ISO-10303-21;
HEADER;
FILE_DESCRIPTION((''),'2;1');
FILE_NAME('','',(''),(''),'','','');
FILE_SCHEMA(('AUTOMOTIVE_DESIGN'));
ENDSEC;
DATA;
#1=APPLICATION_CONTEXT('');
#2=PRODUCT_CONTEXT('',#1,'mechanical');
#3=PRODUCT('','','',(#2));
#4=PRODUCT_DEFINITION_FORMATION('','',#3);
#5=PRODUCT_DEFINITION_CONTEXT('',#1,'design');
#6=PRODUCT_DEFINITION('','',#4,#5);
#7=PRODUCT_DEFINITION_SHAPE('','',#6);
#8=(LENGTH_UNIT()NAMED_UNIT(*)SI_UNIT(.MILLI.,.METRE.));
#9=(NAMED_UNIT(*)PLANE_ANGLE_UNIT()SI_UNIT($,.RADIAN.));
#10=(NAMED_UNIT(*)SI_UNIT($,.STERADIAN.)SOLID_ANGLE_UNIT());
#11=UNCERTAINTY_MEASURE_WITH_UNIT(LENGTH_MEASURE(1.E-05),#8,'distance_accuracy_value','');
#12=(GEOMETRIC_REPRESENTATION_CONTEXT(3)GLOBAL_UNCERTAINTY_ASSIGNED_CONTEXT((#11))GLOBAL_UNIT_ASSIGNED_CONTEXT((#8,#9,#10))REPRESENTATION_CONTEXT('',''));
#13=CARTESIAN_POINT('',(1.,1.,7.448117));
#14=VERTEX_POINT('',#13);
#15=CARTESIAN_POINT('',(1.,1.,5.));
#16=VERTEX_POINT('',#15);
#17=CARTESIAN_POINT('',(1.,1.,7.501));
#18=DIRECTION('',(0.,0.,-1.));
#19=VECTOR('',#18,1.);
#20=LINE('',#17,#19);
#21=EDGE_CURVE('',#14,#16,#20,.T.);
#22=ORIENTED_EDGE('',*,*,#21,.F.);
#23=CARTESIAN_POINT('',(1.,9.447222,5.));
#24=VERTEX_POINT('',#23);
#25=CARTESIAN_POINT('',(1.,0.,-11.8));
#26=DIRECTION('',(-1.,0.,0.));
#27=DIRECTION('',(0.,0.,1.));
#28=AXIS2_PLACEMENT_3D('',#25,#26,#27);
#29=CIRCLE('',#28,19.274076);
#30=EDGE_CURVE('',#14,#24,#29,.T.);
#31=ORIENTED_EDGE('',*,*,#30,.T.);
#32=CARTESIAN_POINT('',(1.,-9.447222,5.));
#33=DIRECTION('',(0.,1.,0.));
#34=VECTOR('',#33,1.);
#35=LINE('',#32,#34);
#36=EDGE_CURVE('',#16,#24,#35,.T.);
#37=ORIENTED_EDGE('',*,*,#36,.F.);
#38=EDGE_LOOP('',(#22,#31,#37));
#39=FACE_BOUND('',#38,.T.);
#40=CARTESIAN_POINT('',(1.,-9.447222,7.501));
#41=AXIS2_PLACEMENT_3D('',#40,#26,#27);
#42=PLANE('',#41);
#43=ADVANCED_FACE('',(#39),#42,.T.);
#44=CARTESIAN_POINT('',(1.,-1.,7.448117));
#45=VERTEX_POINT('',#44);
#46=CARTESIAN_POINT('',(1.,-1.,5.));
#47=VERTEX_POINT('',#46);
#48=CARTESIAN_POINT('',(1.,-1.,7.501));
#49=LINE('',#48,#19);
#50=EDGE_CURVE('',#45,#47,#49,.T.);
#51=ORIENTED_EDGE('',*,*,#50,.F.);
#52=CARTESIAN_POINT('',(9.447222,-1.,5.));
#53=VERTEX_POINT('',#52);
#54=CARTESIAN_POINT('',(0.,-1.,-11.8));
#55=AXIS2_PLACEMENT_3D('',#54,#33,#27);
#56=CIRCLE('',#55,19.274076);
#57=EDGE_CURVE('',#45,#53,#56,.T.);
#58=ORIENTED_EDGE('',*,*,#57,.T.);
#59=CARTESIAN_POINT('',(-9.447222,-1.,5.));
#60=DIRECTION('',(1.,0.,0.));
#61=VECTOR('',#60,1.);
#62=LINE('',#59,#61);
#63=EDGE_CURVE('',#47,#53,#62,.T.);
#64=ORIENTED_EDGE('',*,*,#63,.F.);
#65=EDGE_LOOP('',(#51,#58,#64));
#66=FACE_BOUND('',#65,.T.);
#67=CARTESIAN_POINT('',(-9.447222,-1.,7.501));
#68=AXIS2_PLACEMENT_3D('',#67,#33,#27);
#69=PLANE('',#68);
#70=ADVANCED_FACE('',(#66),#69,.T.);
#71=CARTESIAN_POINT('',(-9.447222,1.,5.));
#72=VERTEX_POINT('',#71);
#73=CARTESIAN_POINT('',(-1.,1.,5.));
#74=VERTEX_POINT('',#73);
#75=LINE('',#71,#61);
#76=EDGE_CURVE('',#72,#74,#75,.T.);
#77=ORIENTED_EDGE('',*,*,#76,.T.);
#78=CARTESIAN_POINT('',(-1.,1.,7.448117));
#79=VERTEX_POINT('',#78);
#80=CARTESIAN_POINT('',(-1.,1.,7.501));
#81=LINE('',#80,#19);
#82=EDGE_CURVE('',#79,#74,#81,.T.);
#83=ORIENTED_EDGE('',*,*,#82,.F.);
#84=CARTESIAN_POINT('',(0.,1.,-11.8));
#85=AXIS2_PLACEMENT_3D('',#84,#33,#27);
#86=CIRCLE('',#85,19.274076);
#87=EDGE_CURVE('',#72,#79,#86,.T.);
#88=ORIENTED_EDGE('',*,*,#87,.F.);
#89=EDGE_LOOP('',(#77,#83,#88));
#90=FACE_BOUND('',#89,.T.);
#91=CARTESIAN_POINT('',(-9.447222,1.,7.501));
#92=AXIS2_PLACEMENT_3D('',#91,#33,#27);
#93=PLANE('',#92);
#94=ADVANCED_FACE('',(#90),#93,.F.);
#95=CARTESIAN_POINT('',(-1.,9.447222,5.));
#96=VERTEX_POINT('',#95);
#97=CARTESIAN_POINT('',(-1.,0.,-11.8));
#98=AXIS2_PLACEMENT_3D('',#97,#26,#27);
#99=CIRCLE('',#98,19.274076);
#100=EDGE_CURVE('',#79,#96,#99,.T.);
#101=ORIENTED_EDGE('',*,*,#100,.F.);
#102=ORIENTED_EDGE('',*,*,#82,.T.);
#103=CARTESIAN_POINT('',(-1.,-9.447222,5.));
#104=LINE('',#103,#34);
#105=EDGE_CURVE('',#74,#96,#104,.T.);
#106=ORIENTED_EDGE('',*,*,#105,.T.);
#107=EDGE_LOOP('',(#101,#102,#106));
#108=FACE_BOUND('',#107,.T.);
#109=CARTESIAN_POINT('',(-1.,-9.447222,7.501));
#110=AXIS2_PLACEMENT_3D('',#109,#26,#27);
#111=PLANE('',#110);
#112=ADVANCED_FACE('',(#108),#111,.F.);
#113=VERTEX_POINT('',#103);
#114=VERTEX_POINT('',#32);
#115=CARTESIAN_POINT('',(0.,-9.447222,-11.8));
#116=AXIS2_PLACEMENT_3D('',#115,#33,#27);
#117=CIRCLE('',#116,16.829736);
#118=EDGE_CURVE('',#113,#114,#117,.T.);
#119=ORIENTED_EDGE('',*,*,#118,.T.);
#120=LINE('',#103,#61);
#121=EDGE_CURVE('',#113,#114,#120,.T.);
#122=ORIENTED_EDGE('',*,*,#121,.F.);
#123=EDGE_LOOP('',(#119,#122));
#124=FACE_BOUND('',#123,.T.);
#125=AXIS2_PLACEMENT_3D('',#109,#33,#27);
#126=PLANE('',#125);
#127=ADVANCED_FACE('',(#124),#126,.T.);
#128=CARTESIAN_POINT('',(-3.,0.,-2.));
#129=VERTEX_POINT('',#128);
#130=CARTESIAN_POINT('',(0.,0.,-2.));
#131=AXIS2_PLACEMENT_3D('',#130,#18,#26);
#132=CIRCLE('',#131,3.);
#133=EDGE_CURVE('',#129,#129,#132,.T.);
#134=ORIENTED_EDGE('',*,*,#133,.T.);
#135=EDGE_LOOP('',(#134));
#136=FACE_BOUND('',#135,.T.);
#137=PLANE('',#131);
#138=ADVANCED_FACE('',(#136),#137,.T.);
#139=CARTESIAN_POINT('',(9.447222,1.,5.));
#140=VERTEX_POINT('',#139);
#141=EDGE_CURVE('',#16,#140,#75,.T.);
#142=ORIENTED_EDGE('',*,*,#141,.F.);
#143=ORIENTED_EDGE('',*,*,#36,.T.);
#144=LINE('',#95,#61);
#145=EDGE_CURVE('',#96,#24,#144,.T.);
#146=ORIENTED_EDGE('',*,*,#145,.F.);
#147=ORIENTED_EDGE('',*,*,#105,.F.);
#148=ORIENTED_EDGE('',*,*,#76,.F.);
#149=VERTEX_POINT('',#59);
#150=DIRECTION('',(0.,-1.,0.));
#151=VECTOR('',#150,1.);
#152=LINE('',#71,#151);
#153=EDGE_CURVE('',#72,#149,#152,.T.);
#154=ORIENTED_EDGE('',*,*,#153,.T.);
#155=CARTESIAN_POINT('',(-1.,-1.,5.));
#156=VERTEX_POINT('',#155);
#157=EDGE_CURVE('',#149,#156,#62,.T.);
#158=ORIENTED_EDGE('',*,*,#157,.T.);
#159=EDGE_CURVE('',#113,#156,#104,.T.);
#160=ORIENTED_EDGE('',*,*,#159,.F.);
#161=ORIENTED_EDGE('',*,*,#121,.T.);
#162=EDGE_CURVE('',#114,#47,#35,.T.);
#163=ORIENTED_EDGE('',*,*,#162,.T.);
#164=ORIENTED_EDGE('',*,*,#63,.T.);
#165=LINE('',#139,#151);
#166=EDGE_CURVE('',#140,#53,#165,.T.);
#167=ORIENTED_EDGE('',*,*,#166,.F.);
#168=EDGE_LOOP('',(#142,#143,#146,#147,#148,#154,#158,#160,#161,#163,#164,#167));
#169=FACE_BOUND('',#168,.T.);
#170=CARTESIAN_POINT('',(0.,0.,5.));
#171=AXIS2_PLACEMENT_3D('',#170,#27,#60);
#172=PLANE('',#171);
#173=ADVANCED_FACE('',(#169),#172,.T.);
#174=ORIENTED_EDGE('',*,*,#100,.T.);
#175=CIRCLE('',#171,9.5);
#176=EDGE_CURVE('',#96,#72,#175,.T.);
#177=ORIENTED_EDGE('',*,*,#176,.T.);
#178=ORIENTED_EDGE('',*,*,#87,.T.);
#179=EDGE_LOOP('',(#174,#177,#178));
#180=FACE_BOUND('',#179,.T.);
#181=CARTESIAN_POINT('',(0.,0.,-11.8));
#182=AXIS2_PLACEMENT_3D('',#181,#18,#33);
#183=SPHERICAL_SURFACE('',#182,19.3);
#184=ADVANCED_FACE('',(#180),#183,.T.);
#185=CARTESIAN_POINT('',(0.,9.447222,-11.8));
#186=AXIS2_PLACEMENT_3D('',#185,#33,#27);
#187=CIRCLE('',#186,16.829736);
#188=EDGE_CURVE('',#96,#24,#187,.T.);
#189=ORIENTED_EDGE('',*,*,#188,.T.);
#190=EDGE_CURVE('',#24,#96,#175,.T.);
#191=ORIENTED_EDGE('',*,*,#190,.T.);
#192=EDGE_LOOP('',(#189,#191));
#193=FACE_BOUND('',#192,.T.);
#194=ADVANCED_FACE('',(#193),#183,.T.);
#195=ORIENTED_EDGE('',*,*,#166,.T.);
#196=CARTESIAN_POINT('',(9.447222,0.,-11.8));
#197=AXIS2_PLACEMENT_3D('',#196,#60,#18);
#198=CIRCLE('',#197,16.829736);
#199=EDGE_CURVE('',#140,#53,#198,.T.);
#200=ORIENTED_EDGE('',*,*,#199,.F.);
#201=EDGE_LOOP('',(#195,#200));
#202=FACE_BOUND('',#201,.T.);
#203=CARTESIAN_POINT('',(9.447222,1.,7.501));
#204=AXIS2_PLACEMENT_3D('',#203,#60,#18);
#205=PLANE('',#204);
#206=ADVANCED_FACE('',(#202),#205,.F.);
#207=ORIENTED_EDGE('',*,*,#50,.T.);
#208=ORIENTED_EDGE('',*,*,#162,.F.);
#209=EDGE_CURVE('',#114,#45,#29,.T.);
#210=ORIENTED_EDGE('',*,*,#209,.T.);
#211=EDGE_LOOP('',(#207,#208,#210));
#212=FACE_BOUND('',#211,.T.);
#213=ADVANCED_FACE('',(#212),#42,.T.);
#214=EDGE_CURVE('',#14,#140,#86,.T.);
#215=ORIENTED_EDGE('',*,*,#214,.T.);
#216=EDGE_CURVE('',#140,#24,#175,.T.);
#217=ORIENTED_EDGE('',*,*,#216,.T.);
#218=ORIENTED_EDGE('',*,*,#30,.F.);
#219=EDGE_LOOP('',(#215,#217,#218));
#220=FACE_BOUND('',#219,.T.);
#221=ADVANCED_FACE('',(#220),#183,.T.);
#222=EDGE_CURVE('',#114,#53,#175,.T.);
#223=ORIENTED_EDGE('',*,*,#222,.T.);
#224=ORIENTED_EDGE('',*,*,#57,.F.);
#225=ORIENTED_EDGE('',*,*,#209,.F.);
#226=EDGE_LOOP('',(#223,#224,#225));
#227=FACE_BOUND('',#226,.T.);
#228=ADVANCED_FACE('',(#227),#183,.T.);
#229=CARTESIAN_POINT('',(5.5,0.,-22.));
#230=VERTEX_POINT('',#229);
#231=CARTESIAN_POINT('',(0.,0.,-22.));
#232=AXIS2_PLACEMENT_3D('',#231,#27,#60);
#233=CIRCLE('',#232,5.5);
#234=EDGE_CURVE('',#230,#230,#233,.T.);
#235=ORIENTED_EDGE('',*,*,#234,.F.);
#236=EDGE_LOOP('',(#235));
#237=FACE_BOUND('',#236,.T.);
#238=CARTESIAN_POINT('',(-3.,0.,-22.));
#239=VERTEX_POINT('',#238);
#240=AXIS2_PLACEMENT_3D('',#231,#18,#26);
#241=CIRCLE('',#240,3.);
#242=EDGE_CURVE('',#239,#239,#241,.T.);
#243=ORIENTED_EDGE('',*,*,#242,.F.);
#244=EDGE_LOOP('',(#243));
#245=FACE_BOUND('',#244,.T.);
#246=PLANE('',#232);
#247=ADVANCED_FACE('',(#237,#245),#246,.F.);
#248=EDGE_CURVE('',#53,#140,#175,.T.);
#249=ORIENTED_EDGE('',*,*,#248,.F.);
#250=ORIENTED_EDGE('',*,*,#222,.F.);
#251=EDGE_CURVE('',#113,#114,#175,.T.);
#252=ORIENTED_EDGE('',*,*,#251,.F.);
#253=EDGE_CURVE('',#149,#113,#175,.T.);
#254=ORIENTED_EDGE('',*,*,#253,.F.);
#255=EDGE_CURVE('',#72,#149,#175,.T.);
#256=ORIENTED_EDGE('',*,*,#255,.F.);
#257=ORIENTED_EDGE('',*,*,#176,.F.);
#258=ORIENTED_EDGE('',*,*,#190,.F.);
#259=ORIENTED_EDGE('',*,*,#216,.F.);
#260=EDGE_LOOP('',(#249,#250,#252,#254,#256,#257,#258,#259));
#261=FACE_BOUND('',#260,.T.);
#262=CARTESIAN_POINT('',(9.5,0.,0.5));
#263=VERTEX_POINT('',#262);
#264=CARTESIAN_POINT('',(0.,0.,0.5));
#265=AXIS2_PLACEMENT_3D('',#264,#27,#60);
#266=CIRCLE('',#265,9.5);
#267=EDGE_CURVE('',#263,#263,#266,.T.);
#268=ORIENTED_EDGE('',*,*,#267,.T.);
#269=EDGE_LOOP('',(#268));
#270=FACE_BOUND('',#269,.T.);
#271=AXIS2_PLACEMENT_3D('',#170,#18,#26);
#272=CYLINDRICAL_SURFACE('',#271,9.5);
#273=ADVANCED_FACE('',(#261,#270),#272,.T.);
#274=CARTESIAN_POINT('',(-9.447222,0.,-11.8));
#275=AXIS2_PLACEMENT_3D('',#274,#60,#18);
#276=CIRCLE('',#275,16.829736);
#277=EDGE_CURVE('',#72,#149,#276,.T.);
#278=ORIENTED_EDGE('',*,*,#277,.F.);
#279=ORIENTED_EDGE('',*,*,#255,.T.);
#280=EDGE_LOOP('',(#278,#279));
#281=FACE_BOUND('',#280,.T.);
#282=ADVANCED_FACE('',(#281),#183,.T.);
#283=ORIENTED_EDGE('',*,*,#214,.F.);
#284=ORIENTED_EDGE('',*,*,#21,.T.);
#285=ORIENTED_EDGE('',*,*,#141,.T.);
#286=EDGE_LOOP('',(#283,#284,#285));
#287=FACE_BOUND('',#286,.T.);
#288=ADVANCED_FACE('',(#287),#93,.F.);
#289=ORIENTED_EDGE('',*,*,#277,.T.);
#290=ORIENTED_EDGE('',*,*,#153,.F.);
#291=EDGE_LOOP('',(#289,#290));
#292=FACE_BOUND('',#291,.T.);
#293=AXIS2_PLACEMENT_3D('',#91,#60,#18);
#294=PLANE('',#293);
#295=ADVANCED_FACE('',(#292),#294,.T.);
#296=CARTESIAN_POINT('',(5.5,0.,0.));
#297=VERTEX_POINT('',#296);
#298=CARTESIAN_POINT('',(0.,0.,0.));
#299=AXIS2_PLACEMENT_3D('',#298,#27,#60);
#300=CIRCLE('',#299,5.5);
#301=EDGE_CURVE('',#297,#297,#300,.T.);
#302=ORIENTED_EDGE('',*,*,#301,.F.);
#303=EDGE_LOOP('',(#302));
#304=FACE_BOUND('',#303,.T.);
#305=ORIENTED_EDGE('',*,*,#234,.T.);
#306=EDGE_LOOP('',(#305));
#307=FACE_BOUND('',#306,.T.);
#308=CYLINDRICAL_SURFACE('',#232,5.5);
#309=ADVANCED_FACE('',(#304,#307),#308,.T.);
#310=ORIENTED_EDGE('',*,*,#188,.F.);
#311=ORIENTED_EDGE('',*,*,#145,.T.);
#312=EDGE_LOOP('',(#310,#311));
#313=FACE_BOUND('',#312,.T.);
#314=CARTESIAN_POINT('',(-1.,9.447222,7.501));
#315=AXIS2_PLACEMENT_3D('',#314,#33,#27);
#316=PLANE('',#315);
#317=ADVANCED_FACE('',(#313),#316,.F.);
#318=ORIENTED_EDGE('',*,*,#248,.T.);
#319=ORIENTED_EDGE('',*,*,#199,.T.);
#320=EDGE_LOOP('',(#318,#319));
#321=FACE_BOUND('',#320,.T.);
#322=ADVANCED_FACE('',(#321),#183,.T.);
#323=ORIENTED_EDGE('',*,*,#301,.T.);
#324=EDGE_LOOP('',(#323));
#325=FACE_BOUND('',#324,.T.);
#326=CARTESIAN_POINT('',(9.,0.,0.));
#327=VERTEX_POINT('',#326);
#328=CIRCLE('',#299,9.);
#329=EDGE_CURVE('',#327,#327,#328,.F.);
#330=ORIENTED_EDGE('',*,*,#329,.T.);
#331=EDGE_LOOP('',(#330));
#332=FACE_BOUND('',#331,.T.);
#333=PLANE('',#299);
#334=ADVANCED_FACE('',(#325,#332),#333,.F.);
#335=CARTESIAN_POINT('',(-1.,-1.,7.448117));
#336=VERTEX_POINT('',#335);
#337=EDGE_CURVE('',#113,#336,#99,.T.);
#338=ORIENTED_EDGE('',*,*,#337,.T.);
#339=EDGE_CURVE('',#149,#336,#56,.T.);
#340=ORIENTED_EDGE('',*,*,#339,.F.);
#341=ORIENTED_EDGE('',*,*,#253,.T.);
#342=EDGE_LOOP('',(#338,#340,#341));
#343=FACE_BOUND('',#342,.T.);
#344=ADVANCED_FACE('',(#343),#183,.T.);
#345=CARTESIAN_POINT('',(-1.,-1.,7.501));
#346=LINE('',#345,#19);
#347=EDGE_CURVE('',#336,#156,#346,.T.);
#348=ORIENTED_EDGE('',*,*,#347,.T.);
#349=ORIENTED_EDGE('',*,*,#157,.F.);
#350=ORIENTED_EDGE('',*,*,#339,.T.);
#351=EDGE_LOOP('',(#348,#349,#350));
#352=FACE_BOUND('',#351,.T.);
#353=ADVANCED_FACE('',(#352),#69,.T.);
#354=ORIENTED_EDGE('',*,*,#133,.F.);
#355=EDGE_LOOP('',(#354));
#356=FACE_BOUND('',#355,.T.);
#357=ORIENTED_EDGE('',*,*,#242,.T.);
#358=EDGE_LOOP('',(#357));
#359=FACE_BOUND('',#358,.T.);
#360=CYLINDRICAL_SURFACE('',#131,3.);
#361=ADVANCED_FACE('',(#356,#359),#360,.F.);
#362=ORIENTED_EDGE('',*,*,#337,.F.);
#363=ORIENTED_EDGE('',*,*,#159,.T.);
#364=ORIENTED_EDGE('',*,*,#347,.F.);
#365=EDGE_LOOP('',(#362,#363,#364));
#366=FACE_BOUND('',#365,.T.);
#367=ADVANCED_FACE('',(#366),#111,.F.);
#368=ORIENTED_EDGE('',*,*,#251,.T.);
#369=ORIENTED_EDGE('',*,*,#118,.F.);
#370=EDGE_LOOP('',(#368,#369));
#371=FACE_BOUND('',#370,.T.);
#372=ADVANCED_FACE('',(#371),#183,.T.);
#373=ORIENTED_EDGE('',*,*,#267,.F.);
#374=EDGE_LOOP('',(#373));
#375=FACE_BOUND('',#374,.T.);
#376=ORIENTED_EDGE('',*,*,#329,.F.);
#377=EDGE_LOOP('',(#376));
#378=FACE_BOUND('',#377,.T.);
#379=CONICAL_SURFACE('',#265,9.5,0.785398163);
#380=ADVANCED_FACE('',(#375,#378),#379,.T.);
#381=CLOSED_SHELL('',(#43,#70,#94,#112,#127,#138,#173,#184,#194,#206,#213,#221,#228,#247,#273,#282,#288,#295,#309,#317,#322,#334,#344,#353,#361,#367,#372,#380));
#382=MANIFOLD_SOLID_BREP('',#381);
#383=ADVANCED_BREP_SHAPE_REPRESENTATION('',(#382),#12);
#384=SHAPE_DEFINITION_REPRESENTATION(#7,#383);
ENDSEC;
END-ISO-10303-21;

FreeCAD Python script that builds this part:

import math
import FreeCAD as App
import Part
import Sketcher
Q = App.Units.Quantity


def edges_at(feature, points):
    """Names of the edges that pass closest to the given points."""
    edges = feature.Shape.Edges
    near = lambda p: min(range(len(edges)), key=lambda i: edges[i].distToShape(Part.Vertex(*p))[0])
    return sorted({f"Edge{near(p) + 1}" for p in points})

doc = App.newDocument("Part")
body = doc.addObject("PartDesign::Body", "Body")

# Sketch on XY plane
sketch1 = body.newObject("Sketcher::SketchObject", "Sketch")
sketch1.AttachmentSupport = (doc.getObject("XY_Plane"), [""])
sketch1.MapMode = "FlatFace"
sketch1.addGeometry(Part.Circle(App.Vector(0, 0, 0), App.Vector(0, 0, 1), 10), False)
sketch1.addConstraint([
    Sketcher.Constraint("Coincident", 0, 3, -1, 1),
    Sketcher.Constraint("Diameter", 0, Q("19 mm")),
])
pad1 = body.newObject("PartDesign::Pad", "Pad")
pad1.Profile = sketch1
pad1.Length = 5

# Sketch on XY plane
sketch2 = body.newObject("Sketcher::SketchObject", "Sketch001")
sketch2.AttachmentSupport = (doc.getObject("XY_Plane"), [""])
sketch2.MapMode = "FlatFace"
sketch2.addGeometry([
    Part.ArcOfCircle(Part.Circle(App.Vector(0.000002, -0.000002, 0), App.Vector(0, 0, 1), 5.500002), math.radians(100.475698), math.radians(169.524302)),  # 0
    Part.ArcOfCircle(Part.Circle(App.Vector(0.000005, 0, 0), App.Vector(0, 0, 1), 5.500005), math.radians(169.524328), math.radians(190.475672)),  # 1
    Part.ArcOfCircle(Part.Circle(App.Vector(0.000002, 0.000002, 0), App.Vector(0, 0, 1), 5.500002), math.radians(-169.524302), math.radians(-100.475698)),  # 2
    Part.ArcOfCircle(Part.Circle(App.Vector(0, 0.000005, 0), App.Vector(0, 0, 1), 5.500005), math.radians(-100.475672), math.radians(-79.524328)),  # 3
    Part.ArcOfCircle(Part.Circle(App.Vector(-0.000002, 0.000002, 0), App.Vector(0, 0, 1), 5.500002), math.radians(-79.524302), math.radians(-10.475698)),  # 4
    Part.ArcOfCircle(Part.Circle(App.Vector(0.000051, -0.000005, 0), App.Vector(0, 0, 1), 5.499949), math.radians(-10.475726), math.radians(0.000054)),  # 5
    Part.ArcOfCircle(Part.Circle(App.Vector(0.000051, 0.000005, 0), App.Vector(0, 0, 1), 5.499949), math.radians(-0.000054), math.radians(10.475726)),  # 6
    Part.ArcOfCircle(Part.Circle(App.Vector(-0.000002, -0.000002, 0), App.Vector(0, 0, 1), 5.500002), math.radians(10.475698), math.radians(79.524302)),  # 7
    Part.ArcOfCircle(Part.Circle(App.Vector(0, -0.000005, 0), App.Vector(0, 0, 1), 5.500005), math.radians(79.524328), math.radians(100.475672)),  # 8
], False)
sketch2.addConstraint([
    Sketcher.Constraint("Coincident", 0, 2, 1, 1),
    Sketcher.Constraint("Coincident", 1, 2, 2, 1),
    Sketcher.Constraint("Coincident", 2, 2, 3, 1),
    Sketcher.Constraint("Coincident", 3, 2, 4, 1),
    Sketcher.Constraint("Coincident", 4, 2, 5, 1),
    Sketcher.Constraint("Coincident", 5, 2, 6, 1),
    Sketcher.Constraint("Coincident", 6, 2, 7, 1),
    Sketcher.Constraint("Coincident", 7, 2, 8, 1),
    Sketcher.Constraint("Coincident", 8, 2, 0, 1),
    Sketcher.Constraint("Coincident", 0, 3, -1, 1),
    Sketcher.Constraint("Coincident", 1, 3, -1, 1),
    Sketcher.Constraint("Coincident", 2, 3, -1, 1),
    Sketcher.Constraint("Coincident", 3, 3, -1, 1),
    Sketcher.Constraint("Coincident", 4, 3, -1, 1),
    Sketcher.Constraint("Coincident", 7, 3, -1, 1),
    Sketcher.Constraint("Coincident", 8, 3, -1, 1),
    Sketcher.Constraint("PointOnObject", 5, 2, -1),
    Sketcher.Constraint("DistanceY", -1, 1, 0, 2, Q("1 mm")),
    Sketcher.Constraint("DistanceY", 1, 2, -1, 1, Q("1 mm")),
    Sketcher.Constraint("DistanceX", 2, 2, -1, 1, Q("1 mm")),
    Sketcher.Constraint("DistanceX", -1, 1, 3, 2, Q("1 mm")),
    Sketcher.Constraint("DistanceY", 4, 2, -1, 1, Q("1 mm")),
    Sketcher.Constraint("DistanceY", -1, 1, 6, 2, Q("1 mm")),
    Sketcher.Constraint("DistanceX", -1, 1, 7, 2, Q("1 mm")),
    Sketcher.Constraint("DistanceX", 8, 2, -1, 1, Q("1 mm")),
    Sketcher.Constraint("DistanceX", -1, 1, 5, 2, Q("5.5 mm")),
    Sketcher.Constraint("Radius", 5, Q("5.499949 mm")),
    Sketcher.Constraint("Radius", 6, Q("5.499949 mm")),
    Sketcher.Constraint("Radius", 0, Q("5.500002 mm")),
])
pad2 = body.newObject("PartDesign::Pad", "Pad001")
pad2.Profile = sketch2
pad2.Length = 22
pad2.Reversed = True

# Sketch on YZ plane
sketch3 = body.newObject("Sketcher::SketchObject", "Sketch002")
sketch3.AttachmentSupport = (doc.getObject("YZ_Plane"), [""])
sketch3.MapMode = "FlatFace"
sketch3.addGeometry([
    Part.LineSegment(App.Vector(0, 5, 0), App.Vector(9.5, 5, 0)),
    Part.ArcOfCircle(Part.Circle(App.Vector(0, -11.8, 0), App.Vector(0, 0, 1), 19.3), math.radians(61), math.radians(90)),
    Part.LineSegment(App.Vector(0, 7.5, 0), App.Vector(0, 5, 0)),
], False)
sketch3.addConstraint([
    Sketcher.Constraint("Coincident", 0, 2, 1, 1),
    Sketcher.Constraint("Coincident", 1, 2, 2, 1),
    Sketcher.Constraint("Coincident", 2, 2, 0, 1),
    Sketcher.Constraint("Horizontal", 0),
    Sketcher.Constraint("Vertical", 2),
    Sketcher.Constraint("PointOnObject", 1, 2, -2),
    Sketcher.Constraint("DistanceX", 0, 1, 0, 2, Q("9.5 mm")),
    Sketcher.Constraint("DistanceY", 2, 2, 2, 1, Q("2.5 mm")),
    Sketcher.Constraint("DistanceY", -1, 1, 0, 2, Q("5 mm")),
    Sketcher.Constraint("Radius", 1, Q("19.299985 mm")),
])
revolution = body.newObject("PartDesign::Revolution", "Revolution")
revolution.Profile = sketch3
revolution.ReferenceAxis = (sketch3, ["V_Axis"])
revolution.Angle = 360

# Sketch on XY plane
sketch4 = body.newObject("Sketcher::SketchObject", "Sketch003")
sketch4.AttachmentSupport = (doc.getObject("XY_Plane"), [""])
sketch4.MapMode = "FlatFace"
sketch4.AttachmentOffset = App.Placement(App.Vector(0, 0, 5), App.Rotation())
sketch4.addGeometry([
    Part.LineSegment(App.Vector(-1, 9.4, 0), App.Vector(-1, -9.4, 0)),
    Part.LineSegment(App.Vector(-1, -9.4, 0), App.Vector(1, -9.4, 0)),
    Part.LineSegment(App.Vector(1, -9.4, 0), App.Vector(1, 9.4, 0)),
    Part.LineSegment(App.Vector(1, 9.4, 0), App.Vector(-1, 9.4, 0)),
], False)
sketch4.addConstraint([
    Sketcher.Constraint("Coincident", 0, 2, 1, 1),
    Sketcher.Constraint("Coincident", 1, 2, 2, 1),
    Sketcher.Constraint("Coincident", 2, 2, 3, 1),
    Sketcher.Constraint("Coincident", 3, 2, 0, 1),
    Sketcher.Constraint("Vertical", 0),
    Sketcher.Constraint("Horizontal", 1),
    Sketcher.Constraint("Vertical", 2),
    Sketcher.Constraint("Horizontal", 3),
    Sketcher.Constraint("Symmetric", 0, 2, 2, 2, -1, 1),
    Sketcher.Constraint("DistanceX", 1, 1, 1, 2, Q("2 mm")),
    Sketcher.Constraint("DistanceY", 0, 2, 0, 1, Q("18.894444 mm")),
])
pocket1 = body.newObject("PartDesign::Pocket", "Pocket")
pocket1.Profile = sketch4
pocket1.Length = 2.5
pocket1.Reversed = True

# Sketch on XY plane
sketch5 = body.newObject("Sketcher::SketchObject", "Sketch004")
sketch5.AttachmentSupport = (doc.getObject("XY_Plane"), [""])
sketch5.MapMode = "FlatFace"
sketch5.AttachmentOffset = App.Placement(App.Vector(0, 0, 5), App.Rotation())
sketch5.addGeometry([
    Part.LineSegment(App.Vector(-9.4, 1, 0), App.Vector(-9.4, -1, 0)),
    Part.LineSegment(App.Vector(-9.4, -1, 0), App.Vector(9.4, -1, 0)),
    Part.LineSegment(App.Vector(9.4, -1, 0), App.Vector(9.4, 1, 0)),
    Part.LineSegment(App.Vector(9.4, 1, 0), App.Vector(-9.4, 1, 0)),
], False)
sketch5.addConstraint([
    Sketcher.Constraint("Coincident", 0, 2, 1, 1),
    Sketcher.Constraint("Coincident", 1, 2, 2, 1),
    Sketcher.Constraint("Coincident", 2, 2, 3, 1),
    Sketcher.Constraint("Coincident", 3, 2, 0, 1),
    Sketcher.Constraint("Vertical", 0),
    Sketcher.Constraint("Horizontal", 1),
    Sketcher.Constraint("Vertical", 2),
    Sketcher.Constraint("Horizontal", 3),
    Sketcher.Constraint("Symmetric", 0, 2, 2, 2, -1, 1),
    Sketcher.Constraint("DistanceY", 0, 2, 0, 1, Q("2 mm")),
    Sketcher.Constraint("DistanceX", 1, 1, 1, 2, Q("18.894444 mm")),
])
pocket2 = body.newObject("PartDesign::Pocket", "Pocket001")
pocket2.Profile = sketch5
pocket2.Length = 2.5
pocket2.Reversed = True
doc.recompute()

chamfer = body.newObject("PartDesign::Chamfer", "Chamfer")
chamfer.Base = (pocket2, edges_at(pocket2, [(-9.5, 0, 0)]))
chamfer.Size = 0.5

# Sketch on XY plane
sketch6 = body.newObject("Sketcher::SketchObject", "Sketch005")
sketch6.AttachmentSupport = (doc.getObject("XY_Plane"), [""])
sketch6.MapMode = "FlatFace"
sketch6.AttachmentOffset = App.Placement(App.Vector(0, 0, -22), App.Rotation())
sketch6.addGeometry(Part.Circle(App.Vector(0, 0, 0), App.Vector(0, 0, 1), 3), False)
sketch6.addConstraint([
    Sketcher.Constraint("Coincident", 0, 3, -1, 1),
    Sketcher.Constraint("Diameter", 0, Q("6 mm")),
])
pocket3 = body.newObject("PartDesign::Pocket", "Pocket002")
pocket3.Profile = sketch6
pocket3.Length = 20
pocket3.Reversed = True

doc.recompute()
